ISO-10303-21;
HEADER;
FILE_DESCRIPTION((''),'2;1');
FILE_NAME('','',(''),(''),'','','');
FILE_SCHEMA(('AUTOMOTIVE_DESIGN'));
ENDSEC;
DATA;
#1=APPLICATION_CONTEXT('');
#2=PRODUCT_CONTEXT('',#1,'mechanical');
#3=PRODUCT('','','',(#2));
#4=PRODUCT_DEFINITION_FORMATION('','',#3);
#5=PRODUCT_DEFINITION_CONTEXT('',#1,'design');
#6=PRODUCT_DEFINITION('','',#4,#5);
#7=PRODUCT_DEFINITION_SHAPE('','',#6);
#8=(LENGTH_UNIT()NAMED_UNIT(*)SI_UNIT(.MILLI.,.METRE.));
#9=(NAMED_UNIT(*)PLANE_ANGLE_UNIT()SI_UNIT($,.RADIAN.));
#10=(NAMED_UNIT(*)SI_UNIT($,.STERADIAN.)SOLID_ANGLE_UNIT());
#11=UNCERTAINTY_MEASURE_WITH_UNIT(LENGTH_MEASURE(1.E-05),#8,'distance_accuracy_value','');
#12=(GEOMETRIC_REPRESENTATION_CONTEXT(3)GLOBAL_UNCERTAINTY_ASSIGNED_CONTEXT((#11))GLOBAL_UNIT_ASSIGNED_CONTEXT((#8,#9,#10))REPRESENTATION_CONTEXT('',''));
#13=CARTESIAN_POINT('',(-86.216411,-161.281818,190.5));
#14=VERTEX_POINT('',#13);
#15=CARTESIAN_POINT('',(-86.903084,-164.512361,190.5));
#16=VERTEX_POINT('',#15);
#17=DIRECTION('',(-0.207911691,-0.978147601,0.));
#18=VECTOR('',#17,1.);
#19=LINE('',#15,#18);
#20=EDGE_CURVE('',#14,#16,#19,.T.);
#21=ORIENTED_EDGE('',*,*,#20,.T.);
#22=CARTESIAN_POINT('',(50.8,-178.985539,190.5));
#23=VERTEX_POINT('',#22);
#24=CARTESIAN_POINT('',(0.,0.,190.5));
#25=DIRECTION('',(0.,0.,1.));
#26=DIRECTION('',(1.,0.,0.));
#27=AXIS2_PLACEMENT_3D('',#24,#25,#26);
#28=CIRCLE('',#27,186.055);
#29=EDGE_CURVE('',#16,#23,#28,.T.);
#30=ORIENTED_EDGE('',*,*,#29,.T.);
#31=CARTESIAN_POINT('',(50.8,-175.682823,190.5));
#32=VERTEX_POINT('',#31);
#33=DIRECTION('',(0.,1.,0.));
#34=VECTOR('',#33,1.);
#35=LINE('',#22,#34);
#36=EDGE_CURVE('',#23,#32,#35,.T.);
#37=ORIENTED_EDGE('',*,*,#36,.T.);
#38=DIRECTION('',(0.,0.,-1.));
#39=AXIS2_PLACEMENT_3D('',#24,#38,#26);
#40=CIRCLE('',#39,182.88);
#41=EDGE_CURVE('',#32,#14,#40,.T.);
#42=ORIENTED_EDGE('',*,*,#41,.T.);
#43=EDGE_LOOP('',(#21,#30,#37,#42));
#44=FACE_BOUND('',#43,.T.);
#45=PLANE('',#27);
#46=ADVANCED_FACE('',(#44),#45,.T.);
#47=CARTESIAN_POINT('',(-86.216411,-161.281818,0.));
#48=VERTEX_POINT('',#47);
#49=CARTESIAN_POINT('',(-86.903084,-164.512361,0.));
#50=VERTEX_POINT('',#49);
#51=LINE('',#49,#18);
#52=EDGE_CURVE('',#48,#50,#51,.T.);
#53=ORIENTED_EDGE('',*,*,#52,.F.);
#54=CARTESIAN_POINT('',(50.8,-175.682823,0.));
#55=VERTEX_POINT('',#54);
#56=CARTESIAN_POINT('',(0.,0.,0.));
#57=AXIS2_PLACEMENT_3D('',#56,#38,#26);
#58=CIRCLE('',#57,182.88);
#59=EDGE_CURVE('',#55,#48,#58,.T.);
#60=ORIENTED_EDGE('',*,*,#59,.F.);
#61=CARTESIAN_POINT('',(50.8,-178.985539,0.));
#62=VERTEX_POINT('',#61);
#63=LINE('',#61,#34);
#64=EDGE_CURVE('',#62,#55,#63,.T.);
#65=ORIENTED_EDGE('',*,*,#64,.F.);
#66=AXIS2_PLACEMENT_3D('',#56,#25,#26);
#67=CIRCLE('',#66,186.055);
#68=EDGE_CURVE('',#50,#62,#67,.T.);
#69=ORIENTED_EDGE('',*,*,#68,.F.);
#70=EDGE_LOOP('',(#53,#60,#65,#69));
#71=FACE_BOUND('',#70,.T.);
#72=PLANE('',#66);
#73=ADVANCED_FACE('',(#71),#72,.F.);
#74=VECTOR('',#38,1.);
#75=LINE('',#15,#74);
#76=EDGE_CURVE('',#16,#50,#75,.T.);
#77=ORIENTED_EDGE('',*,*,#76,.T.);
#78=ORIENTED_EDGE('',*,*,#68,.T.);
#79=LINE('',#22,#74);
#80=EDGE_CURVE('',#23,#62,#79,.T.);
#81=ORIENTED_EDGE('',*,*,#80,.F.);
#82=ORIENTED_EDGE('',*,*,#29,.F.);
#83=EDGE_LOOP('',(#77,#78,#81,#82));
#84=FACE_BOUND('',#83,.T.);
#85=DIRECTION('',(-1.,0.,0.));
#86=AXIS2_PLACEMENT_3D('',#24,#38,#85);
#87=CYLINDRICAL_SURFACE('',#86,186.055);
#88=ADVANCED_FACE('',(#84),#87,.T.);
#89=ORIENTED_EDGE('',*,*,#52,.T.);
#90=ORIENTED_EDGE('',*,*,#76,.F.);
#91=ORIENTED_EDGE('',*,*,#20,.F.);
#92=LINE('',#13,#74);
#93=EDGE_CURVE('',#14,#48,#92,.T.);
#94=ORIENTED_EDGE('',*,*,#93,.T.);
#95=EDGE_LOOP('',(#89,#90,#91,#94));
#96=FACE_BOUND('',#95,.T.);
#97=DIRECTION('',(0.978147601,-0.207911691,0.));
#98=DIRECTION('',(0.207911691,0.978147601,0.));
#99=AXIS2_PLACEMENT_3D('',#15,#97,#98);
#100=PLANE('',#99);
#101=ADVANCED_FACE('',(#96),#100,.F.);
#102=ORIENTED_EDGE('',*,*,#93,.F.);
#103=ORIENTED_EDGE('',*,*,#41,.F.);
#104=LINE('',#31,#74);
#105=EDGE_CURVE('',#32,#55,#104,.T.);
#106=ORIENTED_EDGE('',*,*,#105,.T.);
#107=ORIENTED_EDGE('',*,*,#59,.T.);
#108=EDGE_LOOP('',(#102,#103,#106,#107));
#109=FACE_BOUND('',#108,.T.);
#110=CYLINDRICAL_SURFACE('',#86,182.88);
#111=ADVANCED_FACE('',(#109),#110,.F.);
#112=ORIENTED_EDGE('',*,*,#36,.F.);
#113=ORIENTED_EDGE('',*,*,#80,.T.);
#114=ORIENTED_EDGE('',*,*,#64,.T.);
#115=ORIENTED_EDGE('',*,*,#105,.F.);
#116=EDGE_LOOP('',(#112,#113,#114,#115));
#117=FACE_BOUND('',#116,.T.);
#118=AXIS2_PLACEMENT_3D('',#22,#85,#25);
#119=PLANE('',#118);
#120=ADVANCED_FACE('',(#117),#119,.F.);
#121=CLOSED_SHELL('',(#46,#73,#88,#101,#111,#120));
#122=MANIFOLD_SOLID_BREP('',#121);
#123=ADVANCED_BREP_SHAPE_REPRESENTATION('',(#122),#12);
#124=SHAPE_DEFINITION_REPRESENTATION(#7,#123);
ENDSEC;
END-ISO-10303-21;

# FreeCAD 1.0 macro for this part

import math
import FreeCAD as App
import Part
import Sketcher

V = App.Vector
Q = App.Units.Quantity

doc = App.newDocument("Part")
params = doc.addObject("Spreadsheet::Sheet", "Params")
for row, (alias, value) in enumerate([
    ("sketch1_radius", "7.2 in"),
    ("sketch1_radius2", "7.325 in"),
    ("pad1_length", "7.5 in"),
], start=1):
    params.set(f"A{row}", alias)
    params.set(f"B{row}", "=" + value)
    params.setAlias(f"B{row}", alias)

body = doc.addObject("PartDesign::Body", "Body")

sketch1 = doc.addObject("Sketcher::SketchObject", "Sketch")
body.addObject(sketch1)
sketch1.AttachmentSupport = (doc.XY_Plane, [""])
sketch1.MapMode = "FlatFace"
sketch1.addGeometry([
    Part.LineSegment(V(-86.2, -161.3, 0), V(-86.9, -164.5, 0)),
    Part.ArcOfCircle(Part.Circle(V(0, 0, 0), V(0, 0, 1), 186.1), math.radians(-118), math.radians(-74)),
    Part.LineSegment(V(50.8, -179, 0), V(50.8, -175.7, 0)),
    Part.ArcOfCircle(Part.Circle(V(0, 0, 0), V(0, 0, 1), 182.9), math.radians(-118), math.radians(-74)),
], False)
sketch1.addConstraint([
    Sketcher.Constraint("Coincident", 0, 2, 1, 1),
    Sketcher.Constraint("Coincident", 1, 2, 2, 1),
    Sketcher.Constraint("Coincident", 2, 2, 3, 2),
    Sketcher.Constraint("Coincident", 3, 1, 0, 1),
    Sketcher.Constraint("Vertical", 2),
    Sketcher.Constraint("Coincident", 1, 3, -1, 1),
    Sketcher.Constraint("Coincident", 3, 3, -1, 1),
    Sketcher.Constraint("Radius", 3, Q("7.2 in")),
    Sketcher.Constraint("DistanceX", -1, 1, 1, 2, Q("2 in")),
    Sketcher.Constraint("Angle", 0, Q("-102 deg")),
    Sketcher.Constraint("Radius", 1, Q("7.325 in")),
    Sketcher.Constraint("DistanceY", 0, 2, -1, 1, 164.512361),
])
sketch1.setExpression("Constraints[7]", "Params.sketch1_radius")
sketch1.setExpression("Constraints[10]", "Params.sketch1_radius2")
pad1 = doc.addObject("PartDesign::Pad", "Pad")
body.addObject(pad1)
pad1.Profile = sketch1
pad1.setExpression("Length", "Params.pad1_length")

doc.recompute()
